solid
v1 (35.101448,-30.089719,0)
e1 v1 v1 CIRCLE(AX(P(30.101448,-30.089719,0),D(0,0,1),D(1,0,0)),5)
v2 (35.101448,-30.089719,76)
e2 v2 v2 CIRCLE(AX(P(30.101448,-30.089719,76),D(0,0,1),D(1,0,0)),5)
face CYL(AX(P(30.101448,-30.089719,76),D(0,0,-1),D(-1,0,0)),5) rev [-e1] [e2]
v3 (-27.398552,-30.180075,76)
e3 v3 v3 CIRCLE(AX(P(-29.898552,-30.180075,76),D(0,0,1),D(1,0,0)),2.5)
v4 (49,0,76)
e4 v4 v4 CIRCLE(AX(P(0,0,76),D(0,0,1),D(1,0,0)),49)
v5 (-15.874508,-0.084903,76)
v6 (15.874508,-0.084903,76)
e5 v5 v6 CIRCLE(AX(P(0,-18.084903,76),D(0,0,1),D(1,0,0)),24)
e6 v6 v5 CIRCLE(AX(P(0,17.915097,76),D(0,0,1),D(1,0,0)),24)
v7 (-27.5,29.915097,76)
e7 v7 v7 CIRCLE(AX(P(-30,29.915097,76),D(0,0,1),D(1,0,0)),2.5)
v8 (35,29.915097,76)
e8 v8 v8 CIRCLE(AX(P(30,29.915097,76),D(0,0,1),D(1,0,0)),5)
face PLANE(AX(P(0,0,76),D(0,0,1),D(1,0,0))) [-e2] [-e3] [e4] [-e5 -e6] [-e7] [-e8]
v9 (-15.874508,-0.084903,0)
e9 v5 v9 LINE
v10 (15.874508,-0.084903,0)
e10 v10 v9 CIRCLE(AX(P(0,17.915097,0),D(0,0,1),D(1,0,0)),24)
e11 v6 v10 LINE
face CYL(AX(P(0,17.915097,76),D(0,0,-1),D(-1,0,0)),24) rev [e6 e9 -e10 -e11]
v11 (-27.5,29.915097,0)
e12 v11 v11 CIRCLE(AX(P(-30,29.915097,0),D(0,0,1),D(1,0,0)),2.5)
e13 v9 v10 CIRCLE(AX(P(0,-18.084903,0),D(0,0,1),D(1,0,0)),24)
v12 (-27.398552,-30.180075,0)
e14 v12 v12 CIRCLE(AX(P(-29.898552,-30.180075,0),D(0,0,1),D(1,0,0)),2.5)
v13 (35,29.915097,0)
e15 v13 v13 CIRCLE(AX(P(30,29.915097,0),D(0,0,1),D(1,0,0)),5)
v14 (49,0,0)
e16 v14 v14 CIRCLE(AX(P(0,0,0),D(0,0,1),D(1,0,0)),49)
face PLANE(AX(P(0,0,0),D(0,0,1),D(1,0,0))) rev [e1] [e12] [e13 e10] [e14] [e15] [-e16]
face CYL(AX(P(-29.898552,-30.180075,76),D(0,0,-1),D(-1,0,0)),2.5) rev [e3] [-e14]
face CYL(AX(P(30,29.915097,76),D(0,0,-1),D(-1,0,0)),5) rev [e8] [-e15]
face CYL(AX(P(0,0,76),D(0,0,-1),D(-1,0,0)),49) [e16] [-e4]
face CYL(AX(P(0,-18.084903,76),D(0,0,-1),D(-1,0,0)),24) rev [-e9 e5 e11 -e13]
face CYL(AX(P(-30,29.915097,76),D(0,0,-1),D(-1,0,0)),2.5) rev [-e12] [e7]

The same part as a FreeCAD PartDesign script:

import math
import FreeCAD as App
import Part
import Sketcher
Q = App.Units.Quantity

doc = App.newDocument("Part")
params = doc.addObject("Spreadsheet::Sheet", "Params")
for row, (alias, value) in enumerate([
    ("sketch1_diameter", "98 mm"),
    ("sketch1_diameter2", "5 mm"),
    ("sketch1_diameter3", "10 mm"),
    ("sketch1_radius", "24 mm"),
    ("pad1_length", "76 mm"),
], start=1):
    params.set(f"A{row}", alias)
    params.set(f"B{row}", "=" + value)
    params.setAlias(f"B{row}", alias)

body = doc.addObject("PartDesign::Body", "Body")

# Sketch on XY plane
sketch1 = body.newObject("Sketcher::SketchObject", "Sketch")
sketch1.AttachmentSupport = (doc.getObject("XY_Plane"), [""])
sketch1.MapMode = "FlatFace"
sketch1.addGeometry(Part.Circle(App.Vector(0, 0, 0), App.Vector(0, 0, 1), 49), False)
sketch1.addGeometry(Part.Circle(App.Vector(-29.9, -30.2, 0), App.Vector(0, 0, 1), 2.5), False)
sketch1.addGeometry(Part.Circle(App.Vector(30.1, -30.1, 0), App.Vector(0, 0, 1), 5), False)
sketch1.addGeometry(Part.ArcOfCircle(Part.Circle(App.Vector(0, -18.1, 0), App.Vector(0, 0, 1), 24), math.radians(131), math.radians(409)), False)
sketch1.addGeometry(Part.ArcOfCircle(Part.Circle(App.Vector(0, 17.9, 0), App.Vector(0, 0, 1), 24), math.radians(-49), math.radians(229)), False)
sketch1.addGeometry(Part.Circle(App.Vector(-30, 29.9, 0), App.Vector(0, 0, 1), 2.5), False)
sketch1.addGeometry(Part.Circle(App.Vector(30, 29.9, 0), App.Vector(0, 0, 1), 5), False)
sketch1.addConstraint(Sketcher.Constraint("Coincident", 3, 1, 4, 2))
sketch1.addConstraint(Sketcher.Constraint("Coincident", 4, 1, 3, 2))
sketch1.addConstraint(Sketcher.Constraint("Coincident", 0, 3, -1, 1))
sketch1.addConstraint(Sketcher.Constraint("Equal", 3, 4))
sketch1.addConstraint(Sketcher.Constraint("Equal", 1, 5))
sketch1.addConstraint(Sketcher.Constraint("Equal", 2, 6))
sketch1.addConstraint(Sketcher.Constraint("Symmetric", 5, 3, 6, 3, -2))
sketch1.addConstraint(Sketcher.Constraint("Symmetric", 3, 1, 4, 1, -2))
sketch1.addConstraint(Sketcher.Constraint("Diameter", 0, Q("98 mm")))
sketch1.addConstraint(Sketcher.Constraint("Diameter", 1, Q("5 mm")))
sketch1.addConstraint(Sketcher.Constraint("Diameter", 2, Q("10 mm")))
sketch1.addConstraint(Sketcher.Constraint("Radius", 3, Q("24 mm")))
sketch1.addConstraint(Sketcher.Constraint("DistanceX", 5, 3, -1, 1, Q("30 mm")))
sketch1.addConstraint(Sketcher.Constraint("DistanceX", 1, 3, 2, 3, Q("60 mm")))
sketch1.addConstraint(Sketcher.Constraint("DistanceY", 3, 3, 4, 3, Q("36 mm")))
sketch1.addConstraint(Sketcher.Constraint("DistanceY", 4, 3, 5, 3, Q("12 mm")))
sketch1.addConstraint(Sketcher.Constraint("DistanceY", 2, 3, -1, 1, Q("30.089719 mm")))
sketch1.addConstraint(Sketcher.Constraint("DistanceX", 1, 3, -1, 1, Q("29.898552 mm")))
sketch1.addConstraint(Sketcher.Constraint("DistanceY", 1, 3, -1, 1, Q("30.180075 mm")))
sketch1.addConstraint(Sketcher.Constraint("DistanceY", 3, 3, -1, 1, Q("18.084903 mm")))
sketch1.setExpression("Constraints[8]", "Params.sketch1_diameter")
sketch1.setExpression("Constraints[9]", "Params.sketch1_diameter2")
sketch1.setExpression("Constraints[10]", "Params.sketch1_diameter3")
sketch1.setExpression("Constraints[11]", "Params.sketch1_radius")
pad1 = body.newObject("PartDesign::Pad", "Pad")
pad1.Profile = sketch1
pad1.setExpression("Length", "Params.pad1_length")

doc.recompute()
